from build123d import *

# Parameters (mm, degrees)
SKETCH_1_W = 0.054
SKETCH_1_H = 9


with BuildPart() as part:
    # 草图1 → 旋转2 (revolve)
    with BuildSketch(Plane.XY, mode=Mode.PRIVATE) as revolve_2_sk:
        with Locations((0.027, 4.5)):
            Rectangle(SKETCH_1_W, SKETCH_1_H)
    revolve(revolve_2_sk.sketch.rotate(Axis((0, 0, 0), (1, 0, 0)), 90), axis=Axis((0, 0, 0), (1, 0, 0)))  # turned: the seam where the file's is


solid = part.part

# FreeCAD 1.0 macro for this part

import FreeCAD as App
import Part
import Sketcher

V = App.Vector


def add_polygon(sketch, points):
    """Adds a closed chain of lines whose ends are joined by coincident constraints."""
    first, n = sketch.GeometryCount, len(points)
    for a, b in zip(points, points[1:] + points[:1]):
        sketch.addGeometry(Part.LineSegment(App.Vector(*a, 0), App.Vector(*b, 0)), False)
    for i in range(n):
        sketch.addConstraint(Sketcher.Constraint("Coincident", first + i, 2, first + (i + 1) % n, 1))

doc = App.newDocument("Part")
params = doc.addObject("Spreadsheet::Sheet", "Params")
for row, (alias, value) in enumerate([
    ("sketch1_height", "9 mm"),
    ("revolution_angle", "360 deg"),
], start=1):
    params.set(f"A{row}", alias)
    params.set(f"B{row}", "=" + value)
    params.setAlias(f"B{row}", alias)

body = doc.addObject("PartDesign::Body", "Body")

sketch1 = body.newObject("Sketcher::SketchObject", "Sketch")
sketch1.AttachmentSupport = (doc.getObject("XY_Plane"), [""])
sketch1.MapMode = "FlatFace"
add_polygon(sketch1, [(0, 9), (0, 0), (0.05, 0), (0.05, 9)])
sketch1.addConstraint(Sketcher.Constraint("Vertical", 0))
sketch1.addConstraint(Sketcher.Constraint("Horizontal", 1))
sketch1.addConstraint(Sketcher.Constraint("Vertical", 2))
sketch1.addConstraint(Sketcher.Constraint("Horizontal", 3))
sketch1.addConstraint(Sketcher.Constraint("Coincident", 0, 2, -1, 1))
sketch1.addConstraint(Sketcher.Constraint("DistanceY", 0, 2, 0, 1, 9.0))
sketch1.addConstraint(Sketcher.Constraint("DistanceX", 1, 1, 1, 2, 0.054))
sketch1.setExpression("Constraints[9]", "Params.sketch1_height")
revolution = body.newObject("PartDesign::Revolution", "Revolution")
revolution.Profile = sketch1
revolution.ReferenceAxis = (sketch1, ["H_Axis"])
revolution.setExpression("Angle", "Params.revolution_angle")

doc.recompute()
